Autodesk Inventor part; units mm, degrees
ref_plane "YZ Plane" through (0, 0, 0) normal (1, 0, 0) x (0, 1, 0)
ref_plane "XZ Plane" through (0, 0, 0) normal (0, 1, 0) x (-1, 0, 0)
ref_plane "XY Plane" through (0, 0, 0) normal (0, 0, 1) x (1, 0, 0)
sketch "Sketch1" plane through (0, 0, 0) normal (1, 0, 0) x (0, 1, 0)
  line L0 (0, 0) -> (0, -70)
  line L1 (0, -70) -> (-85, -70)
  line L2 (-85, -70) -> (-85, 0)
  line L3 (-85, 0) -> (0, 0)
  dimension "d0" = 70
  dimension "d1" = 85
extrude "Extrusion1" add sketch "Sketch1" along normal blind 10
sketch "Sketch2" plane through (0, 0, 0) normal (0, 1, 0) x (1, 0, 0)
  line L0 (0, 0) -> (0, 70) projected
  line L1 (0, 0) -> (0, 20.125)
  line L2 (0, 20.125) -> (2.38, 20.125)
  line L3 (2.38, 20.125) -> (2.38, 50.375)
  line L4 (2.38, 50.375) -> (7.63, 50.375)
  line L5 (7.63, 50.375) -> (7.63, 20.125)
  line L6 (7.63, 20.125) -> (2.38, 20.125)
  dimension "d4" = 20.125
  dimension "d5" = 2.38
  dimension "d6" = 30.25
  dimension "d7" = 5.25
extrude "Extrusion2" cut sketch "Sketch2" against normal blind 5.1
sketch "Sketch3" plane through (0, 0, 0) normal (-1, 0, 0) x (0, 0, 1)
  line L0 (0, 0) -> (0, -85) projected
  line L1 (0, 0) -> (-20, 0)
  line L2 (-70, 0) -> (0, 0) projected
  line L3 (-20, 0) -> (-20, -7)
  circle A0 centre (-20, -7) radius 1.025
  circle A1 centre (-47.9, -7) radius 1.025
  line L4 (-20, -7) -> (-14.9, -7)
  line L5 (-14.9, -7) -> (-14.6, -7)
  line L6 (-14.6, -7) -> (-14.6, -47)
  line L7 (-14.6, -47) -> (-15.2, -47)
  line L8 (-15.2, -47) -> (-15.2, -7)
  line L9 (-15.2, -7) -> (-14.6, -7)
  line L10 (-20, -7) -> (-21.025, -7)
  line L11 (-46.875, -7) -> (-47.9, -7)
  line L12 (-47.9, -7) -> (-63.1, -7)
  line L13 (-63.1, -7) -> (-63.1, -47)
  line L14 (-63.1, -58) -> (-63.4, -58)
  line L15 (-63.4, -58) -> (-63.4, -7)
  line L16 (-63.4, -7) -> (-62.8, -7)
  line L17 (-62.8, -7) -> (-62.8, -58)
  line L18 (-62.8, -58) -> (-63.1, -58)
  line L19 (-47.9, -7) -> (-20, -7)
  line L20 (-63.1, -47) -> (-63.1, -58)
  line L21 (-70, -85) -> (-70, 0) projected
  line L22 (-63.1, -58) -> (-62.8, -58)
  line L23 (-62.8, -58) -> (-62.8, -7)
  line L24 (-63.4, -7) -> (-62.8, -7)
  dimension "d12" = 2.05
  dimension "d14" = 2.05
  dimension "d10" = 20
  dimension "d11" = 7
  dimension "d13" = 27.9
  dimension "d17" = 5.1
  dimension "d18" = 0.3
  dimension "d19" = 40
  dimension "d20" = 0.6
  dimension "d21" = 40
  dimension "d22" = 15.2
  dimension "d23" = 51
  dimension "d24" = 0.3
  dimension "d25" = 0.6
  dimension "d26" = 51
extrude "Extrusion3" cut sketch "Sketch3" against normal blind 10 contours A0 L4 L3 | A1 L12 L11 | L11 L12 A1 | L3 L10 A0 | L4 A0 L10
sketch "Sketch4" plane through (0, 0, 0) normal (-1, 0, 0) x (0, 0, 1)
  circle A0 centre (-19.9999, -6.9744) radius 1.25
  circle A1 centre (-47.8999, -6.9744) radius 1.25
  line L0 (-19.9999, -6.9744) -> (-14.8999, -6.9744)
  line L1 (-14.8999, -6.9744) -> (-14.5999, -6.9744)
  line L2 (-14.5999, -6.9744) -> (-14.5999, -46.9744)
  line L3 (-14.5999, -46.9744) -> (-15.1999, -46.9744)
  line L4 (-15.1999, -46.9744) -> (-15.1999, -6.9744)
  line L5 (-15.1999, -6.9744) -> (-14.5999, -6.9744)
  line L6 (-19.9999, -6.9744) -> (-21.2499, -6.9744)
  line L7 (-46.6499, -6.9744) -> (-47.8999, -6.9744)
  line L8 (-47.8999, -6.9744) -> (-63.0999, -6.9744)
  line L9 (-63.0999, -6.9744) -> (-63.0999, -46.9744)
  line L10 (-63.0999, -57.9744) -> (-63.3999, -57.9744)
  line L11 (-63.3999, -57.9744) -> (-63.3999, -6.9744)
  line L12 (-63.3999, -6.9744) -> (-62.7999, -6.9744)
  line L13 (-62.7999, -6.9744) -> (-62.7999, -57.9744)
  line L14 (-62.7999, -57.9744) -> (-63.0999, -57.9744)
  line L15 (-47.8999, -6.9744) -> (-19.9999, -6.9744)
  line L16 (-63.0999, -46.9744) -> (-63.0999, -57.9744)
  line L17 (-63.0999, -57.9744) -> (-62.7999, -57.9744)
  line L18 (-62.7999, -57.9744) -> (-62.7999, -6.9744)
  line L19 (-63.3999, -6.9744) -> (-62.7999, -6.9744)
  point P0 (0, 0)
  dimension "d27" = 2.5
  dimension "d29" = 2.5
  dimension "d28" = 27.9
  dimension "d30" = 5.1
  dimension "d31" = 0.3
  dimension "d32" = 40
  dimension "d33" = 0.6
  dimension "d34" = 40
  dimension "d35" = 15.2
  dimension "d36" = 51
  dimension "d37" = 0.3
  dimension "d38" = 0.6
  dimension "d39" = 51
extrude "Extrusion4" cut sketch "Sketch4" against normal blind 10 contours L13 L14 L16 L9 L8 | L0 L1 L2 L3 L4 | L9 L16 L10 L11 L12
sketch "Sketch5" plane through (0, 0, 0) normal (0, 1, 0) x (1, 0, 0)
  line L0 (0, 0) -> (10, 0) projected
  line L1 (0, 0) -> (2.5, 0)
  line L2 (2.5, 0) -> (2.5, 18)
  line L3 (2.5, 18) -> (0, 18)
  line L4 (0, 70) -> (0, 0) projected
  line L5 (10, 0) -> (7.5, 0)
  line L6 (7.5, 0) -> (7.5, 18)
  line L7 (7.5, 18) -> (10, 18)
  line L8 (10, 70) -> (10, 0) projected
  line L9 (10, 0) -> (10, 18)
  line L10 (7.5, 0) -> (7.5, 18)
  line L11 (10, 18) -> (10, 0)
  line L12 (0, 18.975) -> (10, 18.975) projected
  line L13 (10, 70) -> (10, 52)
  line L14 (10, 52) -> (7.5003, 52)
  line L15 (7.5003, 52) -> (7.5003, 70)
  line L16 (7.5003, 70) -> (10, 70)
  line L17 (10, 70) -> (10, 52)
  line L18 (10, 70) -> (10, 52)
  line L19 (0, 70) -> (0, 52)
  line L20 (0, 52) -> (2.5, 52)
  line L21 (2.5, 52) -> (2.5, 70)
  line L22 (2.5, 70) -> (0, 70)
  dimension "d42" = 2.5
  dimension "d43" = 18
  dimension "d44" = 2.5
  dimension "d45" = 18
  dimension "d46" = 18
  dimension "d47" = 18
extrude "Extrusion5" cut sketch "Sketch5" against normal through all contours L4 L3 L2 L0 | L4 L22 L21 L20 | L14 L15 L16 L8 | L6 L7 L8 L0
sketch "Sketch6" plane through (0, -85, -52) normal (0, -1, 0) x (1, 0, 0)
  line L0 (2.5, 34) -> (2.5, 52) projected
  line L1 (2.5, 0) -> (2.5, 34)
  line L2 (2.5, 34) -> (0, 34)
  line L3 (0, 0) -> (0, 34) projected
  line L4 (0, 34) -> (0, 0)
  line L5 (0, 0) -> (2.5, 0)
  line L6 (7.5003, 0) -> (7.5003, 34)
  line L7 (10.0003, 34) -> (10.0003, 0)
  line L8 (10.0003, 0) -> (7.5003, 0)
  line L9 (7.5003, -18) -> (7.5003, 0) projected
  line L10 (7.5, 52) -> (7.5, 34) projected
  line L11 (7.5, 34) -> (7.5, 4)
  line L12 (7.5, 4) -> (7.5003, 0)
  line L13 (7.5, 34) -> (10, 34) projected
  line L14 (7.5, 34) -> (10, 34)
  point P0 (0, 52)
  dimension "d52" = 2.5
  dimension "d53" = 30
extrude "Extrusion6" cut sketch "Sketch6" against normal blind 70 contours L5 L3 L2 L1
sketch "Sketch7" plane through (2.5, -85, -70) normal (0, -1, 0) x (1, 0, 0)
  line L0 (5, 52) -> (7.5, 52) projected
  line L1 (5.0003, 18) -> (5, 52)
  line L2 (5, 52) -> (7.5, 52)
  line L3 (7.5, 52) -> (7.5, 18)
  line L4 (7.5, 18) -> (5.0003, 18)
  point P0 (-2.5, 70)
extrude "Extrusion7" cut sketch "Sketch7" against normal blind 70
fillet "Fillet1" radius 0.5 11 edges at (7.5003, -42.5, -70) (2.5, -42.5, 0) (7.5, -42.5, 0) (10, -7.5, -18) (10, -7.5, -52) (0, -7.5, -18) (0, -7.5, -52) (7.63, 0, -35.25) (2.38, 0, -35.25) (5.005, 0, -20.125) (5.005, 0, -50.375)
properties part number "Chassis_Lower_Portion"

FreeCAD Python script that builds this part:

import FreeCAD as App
import Part
import Sketcher

V = App.Vector
Q = App.Units.Quantity


def edges_at(feature, points):
    """Names of the edges that pass closest to the given points."""
    edges = feature.Shape.Edges
    near = lambda p: min(range(len(edges)), key=lambda i: edges[i].distToShape(Part.Vertex(*p))[0])
    return sorted({f"Edge{near(p) + 1}" for p in points})

doc = App.newDocument("Part")
params = doc.addObject("Spreadsheet::Sheet", "Params")
for row, (alias, value) in enumerate([
    ("sketch1_width", "85 mm"),
    ("sketch1_height", "70 mm"),
    ("pad1_length", "10 mm"),
    ("sketch2_width", "5.25 mm"),
    ("sketch2_height", "30.25 mm"),
    ("pocket1_length", "5.1 mm"),
    ("sketch3_diameter", "2.05 mm"),
    ("pocket2_length", "10 mm"),
    ("sketch4_width", "51 mm"),
    ("sketch4_width2", "40 mm"),
    ("sketch4_height", "0.6 mm"),
    ("pocket3_length", "10 mm"),
    ("sketch5_height", "18 mm"),
    ("sketch5_width", "2.5 mm"),
    ("sketch6_width", "2.5 mm"),
    ("sketch6_height", "34 mm"),
    ("pocket5_length", "70 mm"),
    ("sketch7_height", "34 mm"),
    ("sketch7_width", "2.5 mm"),
    ("pocket6_length", "70 mm"),
    ("fillet_radius", "0.5 mm"),
], start=1):
    params.set(f"A{row}", alias)
    params.set(f"B{row}", "=" + value)
    params.setAlias(f"B{row}", alias)

body = doc.addObject("PartDesign::Body", "Body")

# Sketch on YZ plane
sketch1 = doc.addObject("Sketcher::SketchObject", "Sketch")
body.addObject(sketch1)
sketch1.AttachmentSupport = (doc.YZ_Plane, [""])
sketch1.MapMode = "FlatFace"
sketch1.addGeometry([
    Part.LineSegment(V(0, -70, 0), V(0, 0, 0)),
    Part.LineSegment(V(0, 0, 0), V(-85, 0, 0)),
    Part.LineSegment(V(-85, 0, 0), V(-85, -70, 0)),
    Part.LineSegment(V(-85, -70, 0), V(0, -70, 0)),
], False)
sketch1.addConstraint([
    Sketcher.Constraint("Coincident", 0, 2, 1, 1),
    Sketcher.Constraint("Coincident", 1, 2, 2, 1),
    Sketcher.Constraint("Coincident", 2, 2, 3, 1),
    Sketcher.Constraint("Coincident", 3, 2, 0, 1),
    Sketcher.Constraint("Vertical", 0),
    Sketcher.Constraint("Horizontal", 1),
    Sketcher.Constraint("Vertical", 2),
    Sketcher.Constraint("Horizontal", 3),
    Sketcher.Constraint("Coincident", 0, 2, -1, 1),
    Sketcher.Constraint("DistanceX", 1, 2, 1, 1, 85.0),
    Sketcher.Constraint("DistanceY", 0, 1, 0, 2, 70.0),
])
sketch1.setExpression("Constraints[9]", "Params.sketch1_width")
sketch1.setExpression("Constraints[10]", "Params.sketch1_height")
pad1 = doc.addObject("PartDesign::Pad", "Pad")
body.addObject(pad1)
pad1.Profile = sketch1
pad1.setExpression("Length", "Params.pad1_length")

# Sketch on XZ plane
sketch2 = doc.addObject("Sketcher::SketchObject", "Sketch001")
body.addObject(sketch2)
sketch2.AttachmentSupport = (doc.XZ_Plane, [""])
sketch2.MapMode = "FlatFace"
sketch2.addGeometry([
    Part.LineSegment(V(2, -50, 0), V(2, -20, 0)),
    Part.LineSegment(V(2, -20, 0), V(8, -20, 0)),
    Part.LineSegment(V(8, -20, 0), V(8, -50, 0)),
    Part.LineSegment(V(8, -50, 0), V(2, -50, 0)),
], False)
sketch2.addConstraint([
    Sketcher.Constraint("Coincident", 0, 2, 1, 1),
    Sketcher.Constraint("Coincident", 1, 2, 2, 1),
    Sketcher.Constraint("Coincident", 2, 2, 3, 1),
    Sketcher.Constraint("Coincident", 3, 2, 0, 1),
    Sketcher.Constraint("Vertical", 0),
    Sketcher.Constraint("Horizontal", 1),
    Sketcher.Constraint("Vertical", 2),
    Sketcher.Constraint("Horizontal", 3),
    Sketcher.Constraint("DistanceX", 1, 1, 1, 2, 5.25),
    Sketcher.Constraint("DistanceY", 0, 1, 0, 2, 30.25),
    Sketcher.Constraint("DistanceX", -1, 1, 0, 2, 2.38),
    Sketcher.Constraint("DistanceY", 0, 2, -1, 1, 20.125),
])
sketch2.setExpression("Constraints[8]", "Params.sketch2_width")
sketch2.setExpression("Constraints[9]", "Params.sketch2_height")
pocket1 = doc.addObject("PartDesign::Pocket", "Pocket")
body.addObject(pocket1)
pocket1.Profile = sketch2
pocket1.setExpression("Length", "Params.pocket1_length")
pocket1.Reversed = True

# Sketch on YZ plane
sketch3 = doc.addObject("Sketcher::SketchObject", "Sketch002")
body.addObject(sketch3)
sketch3.AttachmentSupport = (doc.YZ_Plane, [""])
sketch3.MapMode = "FlatFace"
sketch3.addGeometry([
    Part.Circle(V(-7, -20, 0), V(0, 0, 1), 1),
    Part.Circle(V(-7, -47.9, 0), V(0, 0, 1), 1),
], False)
sketch3.addConstraint([
    Sketcher.Constraint("Equal", 0, 1),
    Sketcher.Constraint("Vertical", 0, 3, 1, 3),
    Sketcher.Constraint("Diameter", 0, 2.05),
    Sketcher.Constraint("DistanceX", 0, 3, -1, 1, 7.0),
    Sketcher.Constraint("DistanceY", 0, 3, -1, 1, 20.0),
    Sketcher.Constraint("DistanceY", 1, 3, 0, 3, 27.9),
])
sketch3.setExpression("Constraints[2]", "Params.sketch3_diameter")
pocket2 = doc.addObject("PartDesign::Pocket", "Pocket001")
body.addObject(pocket2)
pocket2.Profile = sketch3
pocket2.setExpression("Length", "Params.pocket2_length")
pocket2.Reversed = True

# Sketch on YZ plane
sketch4 = doc.addObject("Sketcher::SketchObject", "Sketch003")
body.addObject(sketch4)
sketch4.AttachmentSupport = (doc.YZ_Plane, [""])
sketch4.MapMode = "FlatFace"
sketch4.addGeometry([
    Part.LineSegment(V(-58, -62.8, 0), V(-7, -62.8, 0)),  # 0
    Part.LineSegment(V(-7, -62.8, 0), V(-7, -63.4, 0)),  # 1
    Part.LineSegment(V(-7, -63.4, 0), V(-58, -63.4, 0)),  # 2
    Part.LineSegment(V(-58, -63.4, 0), V(-58, -62.8, 0)),  # 3
    Part.LineSegment(V(-7, -14.6, 0), V(-7, -15.2, 0)),  # 4
    Part.LineSegment(V(-7, -15.2, 0), V(-47, -15.2, 0)),  # 5
    Part.LineSegment(V(-47, -15.2, 0), V(-47, -14.6, 0)),  # 6
    Part.LineSegment(V(-47, -14.6, 0), V(-7, -14.6, 0)),  # 7
], False)
sketch4.addConstraint([
    Sketcher.Constraint("Coincident", 0, 2, 1, 1),
    Sketcher.Constraint("Coincident", 1, 2, 2, 1),
    Sketcher.Constraint("Coincident", 2, 2, 3, 1),
    Sketcher.Constraint("Coincident", 3, 2, 0, 1),
    Sketcher.Constraint("Coincident", 4, 2, 5, 1),
    Sketcher.Constraint("Coincident", 5, 2, 6, 1),
    Sketcher.Constraint("Coincident", 6, 2, 7, 1),
    Sketcher.Constraint("Coincident", 7, 2, 4, 1),
    Sketcher.Constraint("Horizontal", 0),
    Sketcher.Constraint("Vertical", 1),
    Sketcher.Constraint("Horizontal", 2),
    Sketcher.Constraint("Vertical", 3),
    Sketcher.Constraint("Vertical", 4),
    Sketcher.Constraint("Horizontal", 5),
    Sketcher.Constraint("Vertical", 6),
    Sketcher.Constraint("Horizontal", 7),
    Sketcher.Constraint("Vertical", 1, 2, 4, 2),
    Sketcher.Constraint("Equal", 3, 4),
    Sketcher.Constraint("DistanceX", 0, 1, 0, 2, 51.0),
    Sketcher.Constraint("DistanceX", 5, 2, 5, 1, 40.0),
    Sketcher.Constraint("DistanceY", 1, 2, 1, 1, 0.6),
    Sketcher.Constraint("DistanceY", 4, 2, -1, 1, 15.2),
    Sketcher.Constraint("DistanceY", 0, 2, -1, 1, 62.8),
    Sketcher.Constraint("DistanceX", 0, 2, -1, 1, 6.9744),
])
sketch4.setExpression("Constraints[18]", "Params.sketch4_width")
sketch4.setExpression("Constraints[19]", "Params.sketch4_width2")
sketch4.setExpression("Constraints[20]", "Params.sketch4_height")
pocket3 = doc.addObject("PartDesign::Pocket", "Pocket002")
body.addObject(pocket3)
pocket3.Profile = sketch4
pocket3.setExpression("Length", "Params.pocket3_length")
pocket3.Reversed = True

# Sketch on XZ plane
sketch5 = doc.addObject("Sketcher::SketchObject", "Sketch004")
body.addObject(sketch5)
sketch5.AttachmentSupport = (doc.XZ_Plane, [""])
sketch5.MapMode = "FlatFace"
sketch5.addGeometry([
    Part.LineSegment(V(0, -18, 0), V(0, 0, 0)),  # 0
    Part.LineSegment(V(0, 0, 0), V(2.5, 0, 0)),  # 1
    Part.LineSegment(V(2.5, 0, 0), V(2.5, -18, 0)),  # 2
    Part.LineSegment(V(2.5, -18, 0), V(0, -18, 0)),  # 3
    Part.LineSegment(V(0, -70, 0), V(0, -52, 0)),  # 4
    Part.LineSegment(V(0, -52, 0), V(2.5, -52, 0)),  # 5
    Part.LineSegment(V(2.5, -52, 0), V(2.5, -70, 0)),  # 6
    Part.LineSegment(V(2.5, -70, 0), V(0, -70, 0)),  # 7
    Part.LineSegment(V(7.5, -52, 0), V(10, -52, 0)),  # 8
    Part.LineSegment(V(10, -52, 0), V(10, -70, 0)),  # 9
    Part.LineSegment(V(10, -70, 0), V(7.5, -70, 0)),  # 10
    Part.LineSegment(V(7.5, -70, 0), V(7.5, -52, 0)),  # 11
    Part.LineSegment(V(7.5, -18, 0), V(7.5, 0, 0)),  # 12
    Part.LineSegment(V(7.5, 0, 0), V(10, 0, 0)),  # 13
    Part.LineSegment(V(10, 0, 0), V(10, -18, 0)),  # 14
    Part.LineSegment(V(10, -18, 0), V(7.5, -18, 0)),  # 15
], False)
sketch5.addConstraint([
    Sketcher.Constraint("Coincident", 0, 2, 1, 1),
    Sketcher.Constraint("Coincident", 1, 2, 2, 1),
    Sketcher.Constraint("Coincident", 2, 2, 3, 1),
    Sketcher.Constraint("Coincident", 3, 2, 0, 1),
    Sketcher.Constraint("Coincident", 4, 2, 5, 1),
    Sketcher.Constraint("Coincident", 5, 2, 6, 1),
    Sketcher.Constraint("Coincident", 6, 2, 7, 1),
    Sketcher.Constraint("Coincident", 7, 2, 4, 1),
    Sketcher.Constraint("Coincident", 8, 2, 9, 1),
    Sketcher.Constraint("Coincident", 9, 2, 10, 1),
    Sketcher.Constraint("Coincident", 10, 2, 11, 1),
    Sketcher.Constraint("Coincident", 11, 2, 8, 1),
    Sketcher.Constraint("Coincident", 12, 2, 13, 1),
    Sketcher.Constraint("Coincident", 13, 2, 14, 1),
    Sketcher.Constraint("Coincident", 14, 2, 15, 1),
    Sketcher.Constraint("Coincident", 15, 2, 12, 1),
    Sketcher.Constraint("Vertical", 0),
    Sketcher.Constraint("Horizontal", 1),
    Sketcher.Constraint("Vertical", 2),
    Sketcher.Constraint("Horizontal", 3),
    Sketcher.Constraint("Vertical", 4),
    Sketcher.Constraint("Horizontal", 5),
    Sketcher.Constraint("Vertical", 6),
    Sketcher.Constraint("Horizontal", 7),
    Sketcher.Constraint("Horizontal", 8),
    Sketcher.Constraint("Vertical", 9),
    Sketcher.Constraint("Horizontal", 10),
    Sketcher.Constraint("Vertical", 11),
    Sketcher.Constraint("Vertical", 12),
    Sketcher.Constraint("Horizontal", 13),
    Sketcher.Constraint("Vertical", 14),
    Sketcher.Constraint("Horizontal", 15),
    Sketcher.Constraint("Coincident", 0, 2, -1, 1),
    Sketcher.Constraint("PointOnObject", 4, 2, -2),
    Sketcher.Constraint("PointOnObject", 12, 2, -1),
    Sketcher.Constraint("Horizontal", 5, 2, 8, 2),
    Sketcher.Constraint("Horizontal", 7, 2, 9, 2),
    Sketcher.Constraint("Horizontal", 3, 2, 14, 2),
    Sketcher.Constraint("Vertical", 2, 2, 5, 2),
    Sketcher.Constraint("Vertical", 9, 2, 13, 2),
    Sketcher.Constraint("Equal", 7, 13),
    Sketcher.Constraint("Equal", 2, 4),
    Sketcher.Constraint("DistanceY", 0, 1, 0, 2, 18.0),
    Sketcher.Constraint("DistanceX", 1, 1, 1, 2, 2.5),
    Sketcher.Constraint("DistanceX", 8, 1, 8, 2, 2.4997),
    Sketcher.Constraint("DistanceY", 4, 2, -1, 1, 52.0),
    Sketcher.Constraint("DistanceX", -1, 1, 8, 2, 10.0),
])
sketch5.setExpression("Constraints[42]", "Params.sketch5_height")
sketch5.setExpression("Constraints[43]", "Params.sketch5_width")
pocket4 = doc.addObject("PartDesign::Pocket", "Pocket003")
body.addObject(pocket4)
pocket4.Profile = sketch5
pocket4.Type = "ThroughAll"
pocket4.Reversed = True

# Sketch on XZ plane
sketch6 = doc.addObject("Sketcher::SketchObject", "Sketch005")
body.addObject(sketch6)
sketch6.AttachmentSupport = (doc.XZ_Plane, [""])
sketch6.MapMode = "FlatFace"
sketch6.AttachmentOffset = App.Placement(V(0, 0, 85), App.Rotation())
sketch6.addGeometry([
    Part.LineSegment(V(0, -52, 0), V(2.5, -52, 0)),
    Part.LineSegment(V(2.5, -52, 0), V(2.5, -18, 0)),
    Part.LineSegment(V(2.5, -18, 0), V(0, -18, 0)),
    Part.LineSegment(V(0, -18, 0), V(0, -52, 0)),
], False)
sketch6.addConstraint([
    Sketcher.Constraint("Coincident", 0, 2, 1, 1),
    Sketcher.Constraint("Coincident", 1, 2, 2, 1),
    Sketcher.Constraint("Coincident", 2, 2, 3, 1),
    Sketcher.Constraint("Coincident", 3, 2, 0, 1),
    Sketcher.Constraint("Horizontal", 0),
    Sketcher.Constraint("Vertical", 1),
    Sketcher.Constraint("Horizontal", 2),
    Sketcher.Constraint("Vertical", 3),
    Sketcher.Constraint("PointOnObject", 2, 2, -2),
    Sketcher.Constraint("DistanceX", 0, 1, 0, 2, 2.5),
    Sketcher.Constraint("DistanceY", 1, 1, 1, 2, 34.0),
    Sketcher.Constraint("DistanceY", 0, 2, -1, 1, 52.0),
])
sketch6.setExpression("Constraints[9]", "Params.sketch6_width")
sketch6.setExpression("Constraints[10]", "Params.sketch6_height")
pocket5 = doc.addObject("PartDesign::Pocket", "Pocket004")
body.addObject(pocket5)
pocket5.Profile = sketch6
pocket5.setExpression("Length", "Params.pocket5_length")

# Sketch on XZ plane
sketch7 = doc.addObject("Sketcher::SketchObject", "Sketch006")
body.addObject(sketch7)
sketch7.AttachmentSupport = (doc.XZ_Plane, [""])
sketch7.MapMode = "FlatFace"
sketch7.AttachmentOffset = App.Placement(V(0, 0, 85), App.Rotation())
sketch7.addGeometry([
    Part.LineSegment(V(10, -18, 0), V(7.5, -18, 0)),
    Part.LineSegment(V(7.5, -18, 0), V(7.5, -52, 0)),
    Part.LineSegment(V(7.5, -52, 0), V(10, -52, 0)),
    Part.LineSegment(V(10, -52, 0), V(10, -18, 0)),
], False)
sketch7.addConstraint([
    Sketcher.Constraint("Coincident", 0, 2, 1, 1),
    Sketcher.Constraint("Coincident", 1, 2, 2, 1),
    Sketcher.Constraint("Coincident", 2, 2, 3, 1),
    Sketcher.Constraint("Coincident", 3, 2, 0, 1),
    Sketcher.Constraint("Horizontal", 0),
    Sketcher.Constraint("Horizontal", 2),
    Sketcher.Constraint("Vertical", 3),
    Sketcher.Constraint("DistanceY", 3, 1, 3, 2, 34.0),
    Sketcher.Constraint("Angle", 1, Q("-89.9995 deg")),
    Sketcher.Constraint("DistanceX", 0, 2, 0, 1, 2.5),
    Sketcher.Constraint("DistanceY", 0, 2, -1, 1, 18.0),
    Sketcher.Constraint("DistanceX", -1, 1, 2, 2, 10.0),
])
sketch7.setExpression("Constraints[7]", "Params.sketch7_height")
sketch7.setExpression("Constraints[9]", "Params.sketch7_width")
pocket6 = doc.addObject("PartDesign::Pocket", "Pocket005")
body.addObject(pocket6)
pocket6.Profile = sketch7
pocket6.setExpression("Length", "Params.pocket6_length")
doc.recompute()

fillet = doc.addObject("PartDesign::Fillet", "Fillet")
body.addObject(fillet)
fillet.Base = (pocket6, edges_at(pocket6, [
    (7.5, -42.5, -70),
    (2.5, -42.5, 0),
    (7.5, -42.5, 0),
    (10, -7.5, -18),
    (10, -7.5, -52),
    (0, -7.5, -18),
    (0, -7.5, -52),
    (7.63, 0, -35.25),
    (2.38, 0, -35.25),
    (5.005, 0, -20.125),
    (5.005, 0, -50.375),
]))
fillet.setExpression("Radius", "Params.fillet_radius")

doc.recompute()
